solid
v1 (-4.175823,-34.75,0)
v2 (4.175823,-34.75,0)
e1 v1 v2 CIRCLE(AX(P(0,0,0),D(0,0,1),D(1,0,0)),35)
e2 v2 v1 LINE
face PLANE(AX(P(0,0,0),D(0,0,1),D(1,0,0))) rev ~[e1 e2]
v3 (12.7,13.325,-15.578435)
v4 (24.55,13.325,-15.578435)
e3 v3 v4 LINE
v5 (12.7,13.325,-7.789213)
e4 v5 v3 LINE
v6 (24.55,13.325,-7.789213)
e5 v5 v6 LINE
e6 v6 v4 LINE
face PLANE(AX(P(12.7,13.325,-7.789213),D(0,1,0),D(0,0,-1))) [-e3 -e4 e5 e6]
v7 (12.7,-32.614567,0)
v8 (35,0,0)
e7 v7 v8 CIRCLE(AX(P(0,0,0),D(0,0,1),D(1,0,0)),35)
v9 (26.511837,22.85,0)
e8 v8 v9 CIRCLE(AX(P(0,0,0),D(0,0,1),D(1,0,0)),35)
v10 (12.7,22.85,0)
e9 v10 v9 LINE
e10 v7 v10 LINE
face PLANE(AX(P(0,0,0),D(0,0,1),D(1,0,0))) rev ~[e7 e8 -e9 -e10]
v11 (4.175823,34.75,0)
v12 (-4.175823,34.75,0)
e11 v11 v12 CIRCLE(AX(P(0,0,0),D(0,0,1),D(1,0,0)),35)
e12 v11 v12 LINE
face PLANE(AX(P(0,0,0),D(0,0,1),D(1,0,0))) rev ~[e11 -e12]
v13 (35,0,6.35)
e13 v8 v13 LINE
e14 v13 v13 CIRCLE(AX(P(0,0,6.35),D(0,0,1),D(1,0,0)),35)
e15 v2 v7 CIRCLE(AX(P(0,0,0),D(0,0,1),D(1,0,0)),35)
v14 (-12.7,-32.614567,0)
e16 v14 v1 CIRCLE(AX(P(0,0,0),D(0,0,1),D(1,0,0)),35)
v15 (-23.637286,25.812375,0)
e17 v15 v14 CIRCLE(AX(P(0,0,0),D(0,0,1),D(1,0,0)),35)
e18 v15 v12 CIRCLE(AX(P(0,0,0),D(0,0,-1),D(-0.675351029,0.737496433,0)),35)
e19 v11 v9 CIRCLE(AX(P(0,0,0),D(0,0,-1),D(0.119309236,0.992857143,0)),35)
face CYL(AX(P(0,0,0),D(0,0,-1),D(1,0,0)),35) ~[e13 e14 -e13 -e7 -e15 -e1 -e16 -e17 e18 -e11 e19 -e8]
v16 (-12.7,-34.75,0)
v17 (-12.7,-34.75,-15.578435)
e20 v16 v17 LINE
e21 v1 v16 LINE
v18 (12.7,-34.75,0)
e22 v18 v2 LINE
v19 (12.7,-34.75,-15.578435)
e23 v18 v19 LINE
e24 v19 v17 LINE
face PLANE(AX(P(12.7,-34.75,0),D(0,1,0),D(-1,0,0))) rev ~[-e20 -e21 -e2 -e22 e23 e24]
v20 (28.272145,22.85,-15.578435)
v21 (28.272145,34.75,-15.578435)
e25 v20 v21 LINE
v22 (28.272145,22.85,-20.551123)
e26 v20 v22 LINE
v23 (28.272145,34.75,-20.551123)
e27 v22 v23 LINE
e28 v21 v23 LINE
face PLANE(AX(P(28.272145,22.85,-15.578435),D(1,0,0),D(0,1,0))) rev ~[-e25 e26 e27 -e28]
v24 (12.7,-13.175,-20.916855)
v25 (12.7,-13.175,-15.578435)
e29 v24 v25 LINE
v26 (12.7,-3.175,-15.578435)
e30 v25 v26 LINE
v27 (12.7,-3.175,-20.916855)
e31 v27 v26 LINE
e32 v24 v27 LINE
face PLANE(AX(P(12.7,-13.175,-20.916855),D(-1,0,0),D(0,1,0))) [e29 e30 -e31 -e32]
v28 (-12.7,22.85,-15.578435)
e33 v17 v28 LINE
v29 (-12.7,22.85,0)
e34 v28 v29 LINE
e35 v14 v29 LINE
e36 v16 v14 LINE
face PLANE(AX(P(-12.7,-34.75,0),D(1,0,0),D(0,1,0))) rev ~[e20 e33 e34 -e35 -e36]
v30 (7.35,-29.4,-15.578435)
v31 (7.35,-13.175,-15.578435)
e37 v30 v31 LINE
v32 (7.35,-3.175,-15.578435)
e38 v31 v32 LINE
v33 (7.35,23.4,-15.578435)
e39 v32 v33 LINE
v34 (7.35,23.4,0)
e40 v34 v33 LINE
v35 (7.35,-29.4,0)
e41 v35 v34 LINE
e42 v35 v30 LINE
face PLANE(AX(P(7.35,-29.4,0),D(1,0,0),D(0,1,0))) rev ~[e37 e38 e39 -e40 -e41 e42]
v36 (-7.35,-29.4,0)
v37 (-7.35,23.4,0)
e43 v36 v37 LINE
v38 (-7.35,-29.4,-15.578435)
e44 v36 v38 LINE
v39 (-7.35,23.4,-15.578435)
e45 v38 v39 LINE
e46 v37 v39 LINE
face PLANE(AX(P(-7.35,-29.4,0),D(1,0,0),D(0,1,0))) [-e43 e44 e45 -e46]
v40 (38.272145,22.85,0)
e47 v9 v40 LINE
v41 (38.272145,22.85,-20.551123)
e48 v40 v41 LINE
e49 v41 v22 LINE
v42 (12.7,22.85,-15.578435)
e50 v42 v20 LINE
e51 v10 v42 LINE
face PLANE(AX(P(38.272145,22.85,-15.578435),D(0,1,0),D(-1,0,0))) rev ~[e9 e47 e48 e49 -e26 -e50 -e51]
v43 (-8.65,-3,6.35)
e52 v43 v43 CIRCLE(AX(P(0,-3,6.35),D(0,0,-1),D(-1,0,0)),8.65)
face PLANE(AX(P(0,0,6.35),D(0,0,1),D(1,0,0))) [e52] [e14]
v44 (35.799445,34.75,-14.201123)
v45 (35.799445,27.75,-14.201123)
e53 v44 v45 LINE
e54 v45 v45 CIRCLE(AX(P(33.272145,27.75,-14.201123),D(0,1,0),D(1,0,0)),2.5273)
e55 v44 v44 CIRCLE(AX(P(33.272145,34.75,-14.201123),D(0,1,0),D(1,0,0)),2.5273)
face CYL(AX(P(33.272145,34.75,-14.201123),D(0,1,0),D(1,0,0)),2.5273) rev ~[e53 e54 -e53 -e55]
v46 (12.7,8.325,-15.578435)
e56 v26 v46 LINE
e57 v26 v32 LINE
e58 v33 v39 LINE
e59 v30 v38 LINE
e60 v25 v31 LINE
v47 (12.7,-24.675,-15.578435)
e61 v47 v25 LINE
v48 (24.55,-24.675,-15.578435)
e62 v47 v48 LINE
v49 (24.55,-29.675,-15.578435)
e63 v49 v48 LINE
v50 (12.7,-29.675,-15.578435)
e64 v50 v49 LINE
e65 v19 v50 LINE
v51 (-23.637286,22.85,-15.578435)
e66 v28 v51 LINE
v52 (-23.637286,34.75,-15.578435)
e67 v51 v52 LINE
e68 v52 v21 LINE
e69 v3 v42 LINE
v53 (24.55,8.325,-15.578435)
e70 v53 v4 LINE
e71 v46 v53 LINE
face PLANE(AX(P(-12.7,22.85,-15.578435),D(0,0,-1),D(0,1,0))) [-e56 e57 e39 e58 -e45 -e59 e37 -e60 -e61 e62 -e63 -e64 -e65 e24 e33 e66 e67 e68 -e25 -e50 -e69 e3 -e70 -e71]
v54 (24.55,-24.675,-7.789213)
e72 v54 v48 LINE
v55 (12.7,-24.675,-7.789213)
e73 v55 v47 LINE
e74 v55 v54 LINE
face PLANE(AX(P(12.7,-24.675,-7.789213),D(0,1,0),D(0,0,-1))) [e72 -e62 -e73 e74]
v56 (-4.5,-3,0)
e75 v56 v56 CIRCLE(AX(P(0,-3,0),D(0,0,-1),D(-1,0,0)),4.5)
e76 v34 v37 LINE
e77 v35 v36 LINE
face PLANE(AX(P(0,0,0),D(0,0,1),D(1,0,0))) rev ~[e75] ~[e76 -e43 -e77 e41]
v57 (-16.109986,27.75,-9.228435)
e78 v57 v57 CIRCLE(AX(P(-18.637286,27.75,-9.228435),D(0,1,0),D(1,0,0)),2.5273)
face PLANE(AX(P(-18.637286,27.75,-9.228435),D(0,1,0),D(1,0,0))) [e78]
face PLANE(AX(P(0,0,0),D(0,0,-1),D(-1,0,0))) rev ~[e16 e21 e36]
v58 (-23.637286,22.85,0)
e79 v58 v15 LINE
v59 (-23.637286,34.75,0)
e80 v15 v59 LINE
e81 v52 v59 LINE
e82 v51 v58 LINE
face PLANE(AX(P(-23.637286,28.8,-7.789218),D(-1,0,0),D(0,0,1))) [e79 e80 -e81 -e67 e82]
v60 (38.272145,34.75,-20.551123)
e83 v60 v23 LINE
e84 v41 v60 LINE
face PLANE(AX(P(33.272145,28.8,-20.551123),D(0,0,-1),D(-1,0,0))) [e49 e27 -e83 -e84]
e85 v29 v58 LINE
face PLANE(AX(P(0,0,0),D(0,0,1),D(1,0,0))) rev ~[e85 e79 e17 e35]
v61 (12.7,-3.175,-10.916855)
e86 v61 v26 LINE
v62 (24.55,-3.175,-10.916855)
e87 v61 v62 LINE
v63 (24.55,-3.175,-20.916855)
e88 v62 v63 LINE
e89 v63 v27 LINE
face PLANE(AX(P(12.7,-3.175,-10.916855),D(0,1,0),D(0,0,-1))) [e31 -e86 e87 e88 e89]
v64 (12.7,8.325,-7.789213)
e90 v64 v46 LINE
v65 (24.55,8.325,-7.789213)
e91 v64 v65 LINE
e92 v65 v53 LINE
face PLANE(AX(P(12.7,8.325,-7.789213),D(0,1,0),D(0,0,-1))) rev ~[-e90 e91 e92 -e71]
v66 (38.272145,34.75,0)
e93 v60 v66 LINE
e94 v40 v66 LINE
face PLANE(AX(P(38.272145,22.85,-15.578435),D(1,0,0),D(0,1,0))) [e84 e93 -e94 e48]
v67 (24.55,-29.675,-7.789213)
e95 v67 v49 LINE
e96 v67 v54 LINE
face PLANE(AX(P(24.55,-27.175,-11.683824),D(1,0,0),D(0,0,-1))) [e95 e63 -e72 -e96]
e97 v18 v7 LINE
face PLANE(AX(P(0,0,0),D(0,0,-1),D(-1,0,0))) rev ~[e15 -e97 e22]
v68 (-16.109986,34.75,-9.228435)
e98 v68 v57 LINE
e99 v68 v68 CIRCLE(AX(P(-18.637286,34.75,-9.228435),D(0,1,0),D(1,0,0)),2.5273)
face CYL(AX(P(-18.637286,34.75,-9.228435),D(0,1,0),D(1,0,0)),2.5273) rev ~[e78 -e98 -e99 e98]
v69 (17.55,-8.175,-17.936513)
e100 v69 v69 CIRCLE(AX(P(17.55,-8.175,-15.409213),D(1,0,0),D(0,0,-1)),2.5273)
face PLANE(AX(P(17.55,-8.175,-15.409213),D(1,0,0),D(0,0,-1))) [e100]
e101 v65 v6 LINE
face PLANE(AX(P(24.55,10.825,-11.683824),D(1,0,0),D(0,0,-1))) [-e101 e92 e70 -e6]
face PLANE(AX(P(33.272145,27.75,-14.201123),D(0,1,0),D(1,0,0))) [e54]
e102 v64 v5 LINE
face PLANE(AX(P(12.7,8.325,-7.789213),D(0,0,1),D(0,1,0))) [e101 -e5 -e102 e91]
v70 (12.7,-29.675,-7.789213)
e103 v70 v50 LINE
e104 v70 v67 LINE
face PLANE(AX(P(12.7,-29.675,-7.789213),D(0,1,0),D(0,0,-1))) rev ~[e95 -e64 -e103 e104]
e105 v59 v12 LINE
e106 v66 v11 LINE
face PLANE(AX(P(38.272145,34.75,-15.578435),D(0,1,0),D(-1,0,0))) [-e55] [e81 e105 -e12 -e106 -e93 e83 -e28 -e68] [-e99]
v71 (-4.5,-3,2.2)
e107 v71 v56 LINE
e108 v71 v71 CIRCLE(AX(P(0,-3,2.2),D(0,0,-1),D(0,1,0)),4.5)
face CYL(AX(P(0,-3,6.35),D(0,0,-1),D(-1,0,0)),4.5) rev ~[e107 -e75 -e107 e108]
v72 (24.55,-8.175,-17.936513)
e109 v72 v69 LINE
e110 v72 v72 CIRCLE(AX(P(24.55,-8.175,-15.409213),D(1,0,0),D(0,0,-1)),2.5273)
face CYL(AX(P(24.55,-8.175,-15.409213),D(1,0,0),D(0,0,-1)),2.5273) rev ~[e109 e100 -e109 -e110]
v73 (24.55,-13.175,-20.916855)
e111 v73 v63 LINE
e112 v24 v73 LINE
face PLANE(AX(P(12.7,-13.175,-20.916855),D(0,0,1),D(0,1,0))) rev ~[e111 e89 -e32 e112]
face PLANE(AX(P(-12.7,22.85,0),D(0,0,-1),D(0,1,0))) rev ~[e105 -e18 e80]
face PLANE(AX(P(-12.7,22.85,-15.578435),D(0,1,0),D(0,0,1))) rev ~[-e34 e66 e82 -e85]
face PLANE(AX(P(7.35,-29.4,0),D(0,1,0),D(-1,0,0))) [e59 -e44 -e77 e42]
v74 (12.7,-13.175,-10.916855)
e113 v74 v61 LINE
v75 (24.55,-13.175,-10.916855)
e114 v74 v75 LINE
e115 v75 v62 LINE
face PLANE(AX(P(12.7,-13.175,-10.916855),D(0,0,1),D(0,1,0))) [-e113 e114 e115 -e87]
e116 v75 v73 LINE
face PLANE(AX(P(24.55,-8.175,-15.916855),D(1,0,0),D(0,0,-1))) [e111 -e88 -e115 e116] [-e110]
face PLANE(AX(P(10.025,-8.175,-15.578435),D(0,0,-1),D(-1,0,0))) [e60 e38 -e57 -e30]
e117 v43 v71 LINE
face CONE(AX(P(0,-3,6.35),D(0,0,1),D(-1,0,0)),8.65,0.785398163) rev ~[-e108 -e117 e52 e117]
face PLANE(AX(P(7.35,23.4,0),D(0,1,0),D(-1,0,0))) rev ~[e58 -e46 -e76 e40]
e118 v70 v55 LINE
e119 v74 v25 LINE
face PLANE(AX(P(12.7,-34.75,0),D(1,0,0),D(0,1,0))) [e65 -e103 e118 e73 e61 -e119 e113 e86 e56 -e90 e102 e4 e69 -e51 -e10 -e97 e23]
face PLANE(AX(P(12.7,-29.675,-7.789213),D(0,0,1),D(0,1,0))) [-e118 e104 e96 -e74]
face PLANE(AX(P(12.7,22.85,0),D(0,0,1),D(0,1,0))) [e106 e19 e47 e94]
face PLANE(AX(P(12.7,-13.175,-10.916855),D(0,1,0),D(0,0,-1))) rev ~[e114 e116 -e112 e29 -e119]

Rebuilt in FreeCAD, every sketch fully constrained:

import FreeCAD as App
import Part
import Sketcher
from FreeCAD import Vector
Q = App.Units.Quantity


def add_polygon(sketch, points):
    """Adds a closed chain of lines whose ends are joined by coincident constraints."""
    first, n = sketch.GeometryCount, len(points)
    for a, b in zip(points, points[1:] + points[:1]):
        sketch.addGeometry(Part.LineSegment(App.Vector(*a, 0), App.Vector(*b, 0)), False)
    for i in range(n):
        sketch.addConstraint(Sketcher.Constraint("Coincident", first + i, 2, first + (i + 1) % n, 1))

doc = App.newDocument("Part")
body = doc.addObject("PartDesign::Body", "Body")

# Sketch on XY plane
sketch1 = doc.addObject("Sketcher::SketchObject", "Sketch")
body.addObject(sketch1)
sketch1.AttachmentSupport = (doc.XY_Plane, [""])
sketch1.MapMode = "FlatFace"
sketch1.addGeometry(Part.Circle(Vector(0, 0, 0), Vector(0, 0, 1), 35), False)
sketch1.addConstraint(Sketcher.Constraint("Coincident", 0, 3, -1, 1))
sketch1.addConstraint(Sketcher.Constraint("Diameter", 0, Q("70 mm")))
pad1 = doc.addObject("PartDesign::Pad", "Pad")
body.addObject(pad1)
pad1.Profile = sketch1
pad1.Length = 6.35

# Sketch on XY plane
sketch2 = doc.addObject("Sketcher::SketchObject", "Sketch001")
body.addObject(sketch2)
sketch2.AttachmentSupport = (doc.XY_Plane, [""])
sketch2.MapMode = "FlatFace"
add_polygon(sketch2, [(12.7, 34.75), (12.7, -34.75), (-12.7, -34.75), (-12.7, 34.75)])  # lines 0-3
add_polygon(sketch2, [(-7.35, -29.4), (7.35, -29.4), (7.35, 23.4), (-7.35, 23.4)])  # lines 4-7
sketch2.addConstraint(Sketcher.Constraint("Vertical", 0))
sketch2.addConstraint(Sketcher.Constraint("Horizontal", 1))
sketch2.addConstraint(Sketcher.Constraint("Vertical", 2))
sketch2.addConstraint(Sketcher.Constraint("Horizontal", 3))
sketch2.addConstraint(Sketcher.Constraint("Horizontal", 4))
sketch2.addConstraint(Sketcher.Constraint("Vertical", 5))
sketch2.addConstraint(Sketcher.Constraint("Horizontal", 6))
sketch2.addConstraint(Sketcher.Constraint("Vertical", 7))
sketch2.addConstraint(Sketcher.Constraint("Symmetric", 0, 2, 2, 2, -1, 1))
sketch2.addConstraint(Sketcher.Constraint("DistanceX", 1, 2, 1, 1, Q("25.4 mm")))
sketch2.addConstraint(Sketcher.Constraint("DistanceX", 4, 1, 4, 2, Q("14.7 mm")))
sketch2.addConstraint(Sketcher.Constraint("DistanceY", 0, 2, 0, 1, Q("69.5 mm")))
sketch2.addConstraint(Sketcher.Constraint("DistanceY", 5, 1, 5, 2, Q("52.8 mm")))
sketch2.addConstraint(Sketcher.Constraint("DistanceY", 4, 2, -1, 1, Q("29.4 mm")))
sketch2.addConstraint(Sketcher.Constraint("DistanceX", -1, 1, 4, 2, Q("7.35 mm")))
pad2 = doc.addObject("PartDesign::Pad", "Pad001")
body.addObject(pad2)
pad2.Profile = sketch2
pad2.Length = 15.578435
pad2.Reversed = True

# Sketch on XY plane
sketch3 = doc.addObject("Sketcher::SketchObject", "Sketch002")
body.addObject(sketch3)
sketch3.AttachmentSupport = (doc.XY_Plane, [""])
sketch3.MapMode = "FlatFace"
sketch3.AttachmentOffset = App.Placement(Vector(0, 0, 6.35), App.Rotation())
sketch3.addGeometry(Part.Circle(Vector(0, -3, 0), Vector(0, 0, 1), 4.5), False)
sketch3.addConstraint(Sketcher.Constraint("PointOnObject", 0, 3, -2))
sketch3.addConstraint(Sketcher.Constraint("Diameter", 0, Q("9 mm")))
sketch3.addConstraint(Sketcher.Constraint("DistanceY", 0, 3, -1, 1, Q("3 mm")))
doc.recompute()
hole = doc.addObject("PartDesign::Hole", "Hole")
body.addObject(hole)
hole.Profile = sketch3
hole.ThreadType = "None"
hole.Diameter = 9
hole.DepthType = "Dimension"
hole.Depth = 17.5
hole.DrillPoint = "Angled"
hole.DrillPointAngle = 118
hole.HoleCutType = "Countersink"
hole.HoleCutDiameter = 17.3
hole.HoleCutCountersinkAngle = 90

# Sketch on YZ plane
sketch4 = doc.addObject("Sketcher::SketchObject", "Sketch003")
body.addObject(sketch4)
sketch4.AttachmentSupport = (doc.YZ_Plane, [""])
sketch4.MapMode = "FlatFace"
sketch4.AttachmentOffset = App.Placement(Vector(0, 0, 12.7), App.Rotation())
add_polygon(sketch4, [(34.75, 0), (22.85, 0), (22.85, -15.578435), (34.75, -15.578435)])  # lines 0-3
sketch4.addConstraint(Sketcher.Constraint("Horizontal", 0))
sketch4.addConstraint(Sketcher.Constraint("Vertical", 1))
sketch4.addConstraint(Sketcher.Constraint("Horizontal", 2))
sketch4.addConstraint(Sketcher.Constraint("Vertical", 3))
sketch4.addConstraint(Sketcher.Constraint("PointOnObject", 0, 2, -1))
sketch4.addConstraint(Sketcher.Constraint("DistanceX", 0, 2, 0, 1, Q("11.9 mm")))
sketch4.addConstraint(Sketcher.Constraint("DistanceX", -1, 1, 0, 2, Q("22.85 mm")))
sketch4.addConstraint(Sketcher.Constraint("DistanceY", 1, 2, 1, 1, Q("15.578435 mm")))
pad3 = doc.addObject("PartDesign::Pad", "Pad002")
body.addObject(pad3)
pad3.Profile = sketch4
pad3.Length = 25.572145

# Sketch on YZ plane
sketch5 = doc.addObject("Sketcher::SketchObject", "Sketch004")
body.addObject(sketch5)
sketch5.AttachmentSupport = (doc.YZ_Plane, [""])
sketch5.MapMode = "FlatFace"
sketch5.AttachmentOffset = App.Placement(Vector(0, 0, -12.7), App.Rotation())
add_polygon(sketch5, [(34.75, -15.578435), (22.85, -15.578435), (22.85, 0), (34.75, 0)])  # lines 0-3
sketch5.addConstraint(Sketcher.Constraint("Horizontal", 0))
sketch5.addConstraint(Sketcher.Constraint("Vertical", 1))
sketch5.addConstraint(Sketcher.Constraint("Horizontal", 2))
sketch5.addConstraint(Sketcher.Constraint("Vertical", 3))
sketch5.addConstraint(Sketcher.Constraint("PointOnObject", 1, 2, -1))
sketch5.addConstraint(Sketcher.Constraint("DistanceX", 0, 2, 0, 1, Q("11.9 mm")))
sketch5.addConstraint(Sketcher.Constraint("DistanceX", -1, 1, 0, 2, Q("22.85 mm")))
sketch5.addConstraint(Sketcher.Constraint("DistanceY", 1, 1, 1, 2, Q("15.578435 mm")))
pad4 = doc.addObject("PartDesign::Pad", "Pad003")
body.addObject(pad4)
pad4.Profile = sketch5
pad4.Length = 10.937286
pad4.Reversed = True

# Sketch on XZ plane
sketch6 = doc.addObject("Sketcher::SketchObject", "Sketch005")
body.addObject(sketch6)
sketch6.AttachmentSupport = (doc.XZ_Plane, [""])
sketch6.MapMode = "FlatFace"
sketch6.AttachmentOffset = App.Placement(Vector(0, 0, -34.75), App.Rotation())
sketch6.addGeometry(Part.Circle(Vector(-18.637286, -9.228435, 0), Vector(0, 0, 1), 2.5273), False)
sketch6.addConstraint(Sketcher.Constraint("Diameter", 0, Q("5.0546 mm")))
sketch6.addConstraint(Sketcher.Constraint("DistanceX", 0, 3, -1, 1, Q("18.637286 mm")))
sketch6.addConstraint(Sketcher.Constraint("DistanceY", 0, 3, -1, 1, Q("9.228435 mm")))
pocket1 = doc.addObject("PartDesign::Pocket", "Pocket")
body.addObject(pocket1)
pocket1.Profile = sketch6
pocket1.Length = 7
pocket1.Reversed = True

# Sketch on XY plane
sketch7 = doc.addObject("Sketcher::SketchObject", "Sketch006")
body.addObject(sketch7)
sketch7.AttachmentSupport = (doc.XY_Plane, [""])
sketch7.MapMode = "FlatFace"
sketch7.AttachmentOffset = App.Placement(Vector(0, 0, -15.578435), App.Rotation())
add_polygon(sketch7, [(38.272145, 34.75), (38.272145, 22.85), (28.272145, 22.85), (28.272145, 34.75)])  # lines 0-3
sketch7.addConstraint(Sketcher.Constraint("Vertical", 0))
sketch7.addConstraint(Sketcher.Constraint("Horizontal", 1))
sketch7.addConstraint(Sketcher.Constraint("Vertical", 2))
sketch7.addConstraint(Sketcher.Constraint("Horizontal", 3))
sketch7.addConstraint(Sketcher.Constraint("DistanceX", 1, 2, 1, 1, Q("10 mm")))
sketch7.addConstraint(Sketcher.Constraint("DistanceY", 0, 2, 0, 1, Q("11.9 mm")))
sketch7.addConstraint(Sketcher.Constraint("DistanceY", -1, 1, 0, 2, Q("22.85 mm")))
sketch7.addConstraint(Sketcher.Constraint("DistanceX", -1, 1, 0, 2, Q("38.272145 mm")))
pad5 = doc.addObject("PartDesign::Pad", "Pad004")
body.addObject(pad5)
pad5.Profile = sketch7
pad5.Length = 4.972688
pad5.Reversed = True

# Sketch on XZ plane
sketch8 = doc.addObject("Sketcher::SketchObject", "Sketch007")
body.addObject(sketch8)
sketch8.AttachmentSupport = (doc.XZ_Plane, [""])
sketch8.MapMode = "FlatFace"
sketch8.AttachmentOffset = App.Placement(Vector(0, 0, -34.75), App.Rotation())
sketch8.addGeometry(Part.Circle(Vector(33.272145, -14.201123, 0), Vector(0, 0, 1), 2.5273), False)
sketch8.addConstraint(Sketcher.Constraint("Diameter", 0, Q("5.0546 mm")))
sketch8.addConstraint(Sketcher.Constraint("DistanceX", -1, 1, 0, 3, Q("33.272145 mm")))
sketch8.addConstraint(Sketcher.Constraint("DistanceY", 0, 3, -1, 1, Q("14.201123 mm")))
pocket2 = doc.addObject("PartDesign::Pocket", "Pocket001")
body.addObject(pocket2)
pocket2.Profile = sketch8
pocket2.Length = 7
pocket2.Reversed = True

# Sketch on YZ plane
sketch9 = doc.addObject("Sketcher::SketchObject", "Sketch008")
body.addObject(sketch9)
sketch9.AttachmentSupport = (doc.YZ_Plane, [""])
sketch9.MapMode = "FlatFace"
sketch9.AttachmentOffset = App.Placement(Vector(0, 0, 12.7), App.Rotation())
add_polygon(sketch9, [(-3.175, -15.578435), (-13.175, -15.578435), (-13.175, -20.916855), (-3.175, -20.916855)])  # lines 0-3
sketch9.addConstraint(Sketcher.Constraint("Horizontal", 0))
sketch9.addConstraint(Sketcher.Constraint("Vertical", 1))
sketch9.addConstraint(Sketcher.Constraint("Horizontal", 2))
sketch9.addConstraint(Sketcher.Constraint("Vertical", 3))
sketch9.addConstraint(Sketcher.Constraint("DistanceX", 0, 2, 0, 1, Q("10 mm")))
sketch9.addConstraint(Sketcher.Constraint("DistanceX", 0, 2, -1, 1, Q("13.175 mm")))
sketch9.addConstraint(Sketcher.Constraint("DistanceY", 1, 2, 1, 1, Q("5.33842 mm")))
sketch9.addConstraint(Sketcher.Constraint("DistanceY", 0, 2, -1, 1, Q("15.578435 mm")))
pad6 = doc.addObject("PartDesign::Pad", "Pad005")
body.addObject(pad6)
pad6.Profile = sketch9
pad6.Length = 5.35
pad6.Reversed = True

# Sketch on YZ plane
sketch10 = doc.addObject("Sketcher::SketchObject", "Sketch009")
body.addObject(sketch10)
sketch10.AttachmentSupport = (doc.YZ_Plane, [""])
sketch10.MapMode = "FlatFace"
sketch10.AttachmentOffset = App.Placement(Vector(0, 0, 12.7), App.Rotation())
add_polygon(sketch10, [(-3.175, -10.916855), (-13.175, -10.916855), (-13.175, -20.916855), (-3.175, -20.916855)])  # lines 0-3
add_polygon(sketch10, [(13.325, -7.789213), (8.325, -7.789213), (8.325, -15.578435), (13.325, -15.578435)])  # lines 4-7
add_polygon(sketch10, [(-24.675, -7.789213), (-29.675, -7.789213), (-29.675, -15.578435), (-24.675, -15.578435)])  # lines 8-11
sketch10.addConstraint(Sketcher.Constraint("Horizontal", 0))
sketch10.addConstraint(Sketcher.Constraint("Vertical", 1))
sketch10.addConstraint(Sketcher.Constraint("Horizontal", 2))
sketch10.addConstraint(Sketcher.Constraint("Vertical", 3))
sketch10.addConstraint(Sketcher.Constraint("Horizontal", 4))
sketch10.addConstraint(Sketcher.Constraint("Vertical", 5))
sketch10.addConstraint(Sketcher.Constraint("Horizontal", 6))
sketch10.addConstraint(Sketcher.Constraint("Vertical", 7))
sketch10.addConstraint(Sketcher.Constraint("Horizontal", 8))
sketch10.addConstraint(Sketcher.Constraint("Vertical", 9))
sketch10.addConstraint(Sketcher.Constraint("Horizontal", 10))
sketch10.addConstraint(Sketcher.Constraint("Vertical", 11))
sketch10.addConstraint(Sketcher.Constraint("Horizontal", 7, 2, 8, 2))
sketch10.addConstraint(Sketcher.Constraint("Horizontal", 6, 2, 9, 2))
sketch10.addConstraint(Sketcher.Constraint("Equal", 6, 8))
sketch10.addConstraint(Sketcher.Constraint("Equal", 2, 1))
sketch10.addConstraint(Sketcher.Constraint("DistanceX", 0, 2, 0, 1, Q("10 mm")))
sketch10.addConstraint(Sketcher.Constraint("DistanceX", 4, 2, 4, 1, Q("5 mm")))
sketch10.addConstraint(Sketcher.Constraint("DistanceX", 8, 2, 4, 2, Q("38 mm")))
sketch10.addConstraint(Sketcher.Constraint("DistanceX", 3, 2, 4, 2, Q("11.5 mm")))
sketch10.addConstraint(Sketcher.Constraint("DistanceX", 0, 2, -1, 1, Q("13.175 mm")))
sketch10.addConstraint(Sketcher.Constraint("DistanceY", 5, 2, 5, 1, Q("7.789222 mm")))
sketch10.addConstraint(Sketcher.Constraint("DistanceY", 3, 2, 4, 2, Q("3.127642 mm")))
sketch10.addConstraint(Sketcher.Constraint("DistanceY", 0, 2, -1, 1, Q("10.916855 mm")))
pad7 = doc.addObject("PartDesign::Pad", "Pad006")
body.addObject(pad7)
pad7.Profile = sketch10
pad7.Length = 11.85

# Sketch on YZ plane
sketch11 = doc.addObject("Sketcher::SketchObject", "Sketch010")
body.addObject(sketch11)
sketch11.AttachmentSupport = (doc.YZ_Plane, [""])
sketch11.MapMode = "FlatFace"
sketch11.AttachmentOffset = App.Placement(Vector(0, 0, 24.55), App.Rotation())
sketch11.addGeometry(Part.Circle(Vector(-8.175, -15.409213, 0), Vector(0, 0, 1), 2.5273), False)
sketch11.addConstraint(Sketcher.Constraint("Diameter", 0, Q("5.0546 mm")))
sketch11.addConstraint(Sketcher.Constraint("DistanceX", 0, 3, -1, 1, Q("8.175 mm")))
sketch11.addConstraint(Sketcher.Constraint("DistanceY", 0, 3, -1, 1, Q("15.409213 mm")))
pocket3 = doc.addObject("PartDesign::Pocket", "Pocket002")
body.addObject(pocket3)
pocket3.Profile = sketch11
pocket3.Length = 7

# Sketch on XY plane
sketch12 = doc.addObject("Sketcher::SketchObject", "Sketch011")
body.addObject(sketch12)
sketch12.AttachmentSupport = (doc.XY_Plane, [""])
sketch12.MapMode = "FlatFace"
sketch12.AttachmentOffset = App.Placement(Vector(0, 0, -20.916855), App.Rotation())
add_polygon(sketch12, [(12.7, -3.175), (12.7, -13.175), (7.35, -13.175), (7.35, -3.175)])  # lines 0-3
sketch12.addConstraint(Sketcher.Constraint("Vertical", 0))
sketch12.addConstraint(Sketcher.Constraint("Horizontal", 1))
sketch12.addConstraint(Sketcher.Constraint("Vertical", 2))
sketch12.addConstraint(Sketcher.Constraint("Horizontal", 3))
sketch12.addConstraint(Sketcher.Constraint("DistanceY", 0, 2, 0, 1, Q("10 mm")))
sketch12.addConstraint(Sketcher.Constraint("DistanceX", 1, 2, 1, 1, Q("5.35 mm")))
sketch12.addConstraint(Sketcher.Constraint("DistanceX", -1, 1, 0, 2, Q("12.7 mm")))
sketch12.addConstraint(Sketcher.Constraint("DistanceY", 0, 2, -1, 1, Q("13.175 mm")))
pocket4 = doc.addObject("PartDesign::Pocket", "Pocket003")
body.addObject(pocket4)
pocket4.Profile = sketch12
pocket4.Length = 5.33842
pocket4.Reversed = True

doc.recompute()
